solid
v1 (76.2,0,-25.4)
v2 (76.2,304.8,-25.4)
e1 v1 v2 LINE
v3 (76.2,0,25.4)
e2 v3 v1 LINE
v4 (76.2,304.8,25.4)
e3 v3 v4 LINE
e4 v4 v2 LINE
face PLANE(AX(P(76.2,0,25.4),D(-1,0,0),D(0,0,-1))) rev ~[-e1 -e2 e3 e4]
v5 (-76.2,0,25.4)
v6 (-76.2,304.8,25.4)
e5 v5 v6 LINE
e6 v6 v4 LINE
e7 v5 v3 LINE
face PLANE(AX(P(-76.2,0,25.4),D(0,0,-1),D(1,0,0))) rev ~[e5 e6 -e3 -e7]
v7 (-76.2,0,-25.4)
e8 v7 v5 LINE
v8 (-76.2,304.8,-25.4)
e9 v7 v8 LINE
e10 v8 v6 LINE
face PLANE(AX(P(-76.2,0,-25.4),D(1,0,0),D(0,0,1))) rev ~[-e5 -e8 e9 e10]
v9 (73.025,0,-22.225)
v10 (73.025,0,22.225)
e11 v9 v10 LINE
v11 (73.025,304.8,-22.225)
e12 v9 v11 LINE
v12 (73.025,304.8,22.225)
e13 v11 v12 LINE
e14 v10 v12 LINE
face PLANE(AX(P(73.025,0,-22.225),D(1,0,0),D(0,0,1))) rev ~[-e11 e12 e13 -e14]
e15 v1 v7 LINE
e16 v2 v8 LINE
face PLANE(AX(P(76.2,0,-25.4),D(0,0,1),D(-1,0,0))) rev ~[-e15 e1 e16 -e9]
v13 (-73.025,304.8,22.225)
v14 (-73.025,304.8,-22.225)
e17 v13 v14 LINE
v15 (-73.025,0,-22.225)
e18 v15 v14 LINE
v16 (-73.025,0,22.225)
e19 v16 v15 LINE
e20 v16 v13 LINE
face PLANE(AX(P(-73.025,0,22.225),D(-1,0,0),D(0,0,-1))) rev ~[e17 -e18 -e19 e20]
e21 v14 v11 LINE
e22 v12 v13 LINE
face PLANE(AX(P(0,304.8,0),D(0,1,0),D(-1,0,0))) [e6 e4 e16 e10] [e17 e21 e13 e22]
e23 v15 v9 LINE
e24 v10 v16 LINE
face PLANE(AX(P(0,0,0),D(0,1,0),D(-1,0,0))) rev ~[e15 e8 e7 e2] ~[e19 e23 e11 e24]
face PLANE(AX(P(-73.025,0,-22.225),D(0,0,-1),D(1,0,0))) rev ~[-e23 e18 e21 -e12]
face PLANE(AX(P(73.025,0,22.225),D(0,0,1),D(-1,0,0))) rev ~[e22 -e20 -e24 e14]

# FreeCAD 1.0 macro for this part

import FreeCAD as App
import Part
import Sketcher
from FreeCAD import Vector
Q = App.Units.Quantity


def add_polygon(sketch, points):
    """Adds a closed chain of lines whose ends are joined by coincident constraints."""
    first, n = sketch.GeometryCount, len(points)
    for a, b in zip(points, points[1:] + points[:1]):
        sketch.addGeometry(Part.LineSegment(App.Vector(*a, 0), App.Vector(*b, 0)), False)
    for i in range(n):
        sketch.addConstraint(Sketcher.Constraint("Coincident", first + i, 2, first + (i + 1) % n, 1))

doc = App.newDocument("Part")
body = doc.addObject("PartDesign::Body", "Body")

sketch1 = body.newObject("Sketcher::SketchObject", "Sketch")
sketch1.AttachmentSupport = (doc.getObject("XZ_Plane"), [""])
sketch1.MapMode = "FlatFace"
add_polygon(sketch1, [(-76, -25), (-76, 25), (76, 25), (76, -25)])
add_polygon(sketch1, [(73, -22), (73, 22), (-73, 22), (-73, -22)])
sketch1.addConstraint([
    Sketcher.Constraint("Vertical", 0),
    Sketcher.Constraint("Horizontal", 1),
    Sketcher.Constraint("Vertical", 2),
    Sketcher.Constraint("Horizontal", 3),
    Sketcher.Constraint("Vertical", 4),
    Sketcher.Constraint("Horizontal", 5),
    Sketcher.Constraint("Vertical", 6),
    Sketcher.Constraint("Horizontal", 7),
    Sketcher.Constraint("Symmetric", 0, 2, 2, 2, -1, 1),
    Sketcher.Constraint("Symmetric", 4, 2, 6, 2, -1, 1),
    Sketcher.Constraint("DistanceX", 1, 1, 1, 2, Q("6 in")),
    Sketcher.Constraint("DistanceY", 0, 1, 0, 2, Q("2 in")),
    Sketcher.Constraint("DistanceX", 4, 2, 1, 2, Q("0.125 in")),
    Sketcher.Constraint("DistanceY", 4, 2, 1, 2, Q("0.125 in")),
])
pad1 = body.newObject("PartDesign::Pad", "Pad")
pad1.Profile = sketch1
pad1.Length = Q("12 in")
pad1.Reversed = True

doc.recompute()
